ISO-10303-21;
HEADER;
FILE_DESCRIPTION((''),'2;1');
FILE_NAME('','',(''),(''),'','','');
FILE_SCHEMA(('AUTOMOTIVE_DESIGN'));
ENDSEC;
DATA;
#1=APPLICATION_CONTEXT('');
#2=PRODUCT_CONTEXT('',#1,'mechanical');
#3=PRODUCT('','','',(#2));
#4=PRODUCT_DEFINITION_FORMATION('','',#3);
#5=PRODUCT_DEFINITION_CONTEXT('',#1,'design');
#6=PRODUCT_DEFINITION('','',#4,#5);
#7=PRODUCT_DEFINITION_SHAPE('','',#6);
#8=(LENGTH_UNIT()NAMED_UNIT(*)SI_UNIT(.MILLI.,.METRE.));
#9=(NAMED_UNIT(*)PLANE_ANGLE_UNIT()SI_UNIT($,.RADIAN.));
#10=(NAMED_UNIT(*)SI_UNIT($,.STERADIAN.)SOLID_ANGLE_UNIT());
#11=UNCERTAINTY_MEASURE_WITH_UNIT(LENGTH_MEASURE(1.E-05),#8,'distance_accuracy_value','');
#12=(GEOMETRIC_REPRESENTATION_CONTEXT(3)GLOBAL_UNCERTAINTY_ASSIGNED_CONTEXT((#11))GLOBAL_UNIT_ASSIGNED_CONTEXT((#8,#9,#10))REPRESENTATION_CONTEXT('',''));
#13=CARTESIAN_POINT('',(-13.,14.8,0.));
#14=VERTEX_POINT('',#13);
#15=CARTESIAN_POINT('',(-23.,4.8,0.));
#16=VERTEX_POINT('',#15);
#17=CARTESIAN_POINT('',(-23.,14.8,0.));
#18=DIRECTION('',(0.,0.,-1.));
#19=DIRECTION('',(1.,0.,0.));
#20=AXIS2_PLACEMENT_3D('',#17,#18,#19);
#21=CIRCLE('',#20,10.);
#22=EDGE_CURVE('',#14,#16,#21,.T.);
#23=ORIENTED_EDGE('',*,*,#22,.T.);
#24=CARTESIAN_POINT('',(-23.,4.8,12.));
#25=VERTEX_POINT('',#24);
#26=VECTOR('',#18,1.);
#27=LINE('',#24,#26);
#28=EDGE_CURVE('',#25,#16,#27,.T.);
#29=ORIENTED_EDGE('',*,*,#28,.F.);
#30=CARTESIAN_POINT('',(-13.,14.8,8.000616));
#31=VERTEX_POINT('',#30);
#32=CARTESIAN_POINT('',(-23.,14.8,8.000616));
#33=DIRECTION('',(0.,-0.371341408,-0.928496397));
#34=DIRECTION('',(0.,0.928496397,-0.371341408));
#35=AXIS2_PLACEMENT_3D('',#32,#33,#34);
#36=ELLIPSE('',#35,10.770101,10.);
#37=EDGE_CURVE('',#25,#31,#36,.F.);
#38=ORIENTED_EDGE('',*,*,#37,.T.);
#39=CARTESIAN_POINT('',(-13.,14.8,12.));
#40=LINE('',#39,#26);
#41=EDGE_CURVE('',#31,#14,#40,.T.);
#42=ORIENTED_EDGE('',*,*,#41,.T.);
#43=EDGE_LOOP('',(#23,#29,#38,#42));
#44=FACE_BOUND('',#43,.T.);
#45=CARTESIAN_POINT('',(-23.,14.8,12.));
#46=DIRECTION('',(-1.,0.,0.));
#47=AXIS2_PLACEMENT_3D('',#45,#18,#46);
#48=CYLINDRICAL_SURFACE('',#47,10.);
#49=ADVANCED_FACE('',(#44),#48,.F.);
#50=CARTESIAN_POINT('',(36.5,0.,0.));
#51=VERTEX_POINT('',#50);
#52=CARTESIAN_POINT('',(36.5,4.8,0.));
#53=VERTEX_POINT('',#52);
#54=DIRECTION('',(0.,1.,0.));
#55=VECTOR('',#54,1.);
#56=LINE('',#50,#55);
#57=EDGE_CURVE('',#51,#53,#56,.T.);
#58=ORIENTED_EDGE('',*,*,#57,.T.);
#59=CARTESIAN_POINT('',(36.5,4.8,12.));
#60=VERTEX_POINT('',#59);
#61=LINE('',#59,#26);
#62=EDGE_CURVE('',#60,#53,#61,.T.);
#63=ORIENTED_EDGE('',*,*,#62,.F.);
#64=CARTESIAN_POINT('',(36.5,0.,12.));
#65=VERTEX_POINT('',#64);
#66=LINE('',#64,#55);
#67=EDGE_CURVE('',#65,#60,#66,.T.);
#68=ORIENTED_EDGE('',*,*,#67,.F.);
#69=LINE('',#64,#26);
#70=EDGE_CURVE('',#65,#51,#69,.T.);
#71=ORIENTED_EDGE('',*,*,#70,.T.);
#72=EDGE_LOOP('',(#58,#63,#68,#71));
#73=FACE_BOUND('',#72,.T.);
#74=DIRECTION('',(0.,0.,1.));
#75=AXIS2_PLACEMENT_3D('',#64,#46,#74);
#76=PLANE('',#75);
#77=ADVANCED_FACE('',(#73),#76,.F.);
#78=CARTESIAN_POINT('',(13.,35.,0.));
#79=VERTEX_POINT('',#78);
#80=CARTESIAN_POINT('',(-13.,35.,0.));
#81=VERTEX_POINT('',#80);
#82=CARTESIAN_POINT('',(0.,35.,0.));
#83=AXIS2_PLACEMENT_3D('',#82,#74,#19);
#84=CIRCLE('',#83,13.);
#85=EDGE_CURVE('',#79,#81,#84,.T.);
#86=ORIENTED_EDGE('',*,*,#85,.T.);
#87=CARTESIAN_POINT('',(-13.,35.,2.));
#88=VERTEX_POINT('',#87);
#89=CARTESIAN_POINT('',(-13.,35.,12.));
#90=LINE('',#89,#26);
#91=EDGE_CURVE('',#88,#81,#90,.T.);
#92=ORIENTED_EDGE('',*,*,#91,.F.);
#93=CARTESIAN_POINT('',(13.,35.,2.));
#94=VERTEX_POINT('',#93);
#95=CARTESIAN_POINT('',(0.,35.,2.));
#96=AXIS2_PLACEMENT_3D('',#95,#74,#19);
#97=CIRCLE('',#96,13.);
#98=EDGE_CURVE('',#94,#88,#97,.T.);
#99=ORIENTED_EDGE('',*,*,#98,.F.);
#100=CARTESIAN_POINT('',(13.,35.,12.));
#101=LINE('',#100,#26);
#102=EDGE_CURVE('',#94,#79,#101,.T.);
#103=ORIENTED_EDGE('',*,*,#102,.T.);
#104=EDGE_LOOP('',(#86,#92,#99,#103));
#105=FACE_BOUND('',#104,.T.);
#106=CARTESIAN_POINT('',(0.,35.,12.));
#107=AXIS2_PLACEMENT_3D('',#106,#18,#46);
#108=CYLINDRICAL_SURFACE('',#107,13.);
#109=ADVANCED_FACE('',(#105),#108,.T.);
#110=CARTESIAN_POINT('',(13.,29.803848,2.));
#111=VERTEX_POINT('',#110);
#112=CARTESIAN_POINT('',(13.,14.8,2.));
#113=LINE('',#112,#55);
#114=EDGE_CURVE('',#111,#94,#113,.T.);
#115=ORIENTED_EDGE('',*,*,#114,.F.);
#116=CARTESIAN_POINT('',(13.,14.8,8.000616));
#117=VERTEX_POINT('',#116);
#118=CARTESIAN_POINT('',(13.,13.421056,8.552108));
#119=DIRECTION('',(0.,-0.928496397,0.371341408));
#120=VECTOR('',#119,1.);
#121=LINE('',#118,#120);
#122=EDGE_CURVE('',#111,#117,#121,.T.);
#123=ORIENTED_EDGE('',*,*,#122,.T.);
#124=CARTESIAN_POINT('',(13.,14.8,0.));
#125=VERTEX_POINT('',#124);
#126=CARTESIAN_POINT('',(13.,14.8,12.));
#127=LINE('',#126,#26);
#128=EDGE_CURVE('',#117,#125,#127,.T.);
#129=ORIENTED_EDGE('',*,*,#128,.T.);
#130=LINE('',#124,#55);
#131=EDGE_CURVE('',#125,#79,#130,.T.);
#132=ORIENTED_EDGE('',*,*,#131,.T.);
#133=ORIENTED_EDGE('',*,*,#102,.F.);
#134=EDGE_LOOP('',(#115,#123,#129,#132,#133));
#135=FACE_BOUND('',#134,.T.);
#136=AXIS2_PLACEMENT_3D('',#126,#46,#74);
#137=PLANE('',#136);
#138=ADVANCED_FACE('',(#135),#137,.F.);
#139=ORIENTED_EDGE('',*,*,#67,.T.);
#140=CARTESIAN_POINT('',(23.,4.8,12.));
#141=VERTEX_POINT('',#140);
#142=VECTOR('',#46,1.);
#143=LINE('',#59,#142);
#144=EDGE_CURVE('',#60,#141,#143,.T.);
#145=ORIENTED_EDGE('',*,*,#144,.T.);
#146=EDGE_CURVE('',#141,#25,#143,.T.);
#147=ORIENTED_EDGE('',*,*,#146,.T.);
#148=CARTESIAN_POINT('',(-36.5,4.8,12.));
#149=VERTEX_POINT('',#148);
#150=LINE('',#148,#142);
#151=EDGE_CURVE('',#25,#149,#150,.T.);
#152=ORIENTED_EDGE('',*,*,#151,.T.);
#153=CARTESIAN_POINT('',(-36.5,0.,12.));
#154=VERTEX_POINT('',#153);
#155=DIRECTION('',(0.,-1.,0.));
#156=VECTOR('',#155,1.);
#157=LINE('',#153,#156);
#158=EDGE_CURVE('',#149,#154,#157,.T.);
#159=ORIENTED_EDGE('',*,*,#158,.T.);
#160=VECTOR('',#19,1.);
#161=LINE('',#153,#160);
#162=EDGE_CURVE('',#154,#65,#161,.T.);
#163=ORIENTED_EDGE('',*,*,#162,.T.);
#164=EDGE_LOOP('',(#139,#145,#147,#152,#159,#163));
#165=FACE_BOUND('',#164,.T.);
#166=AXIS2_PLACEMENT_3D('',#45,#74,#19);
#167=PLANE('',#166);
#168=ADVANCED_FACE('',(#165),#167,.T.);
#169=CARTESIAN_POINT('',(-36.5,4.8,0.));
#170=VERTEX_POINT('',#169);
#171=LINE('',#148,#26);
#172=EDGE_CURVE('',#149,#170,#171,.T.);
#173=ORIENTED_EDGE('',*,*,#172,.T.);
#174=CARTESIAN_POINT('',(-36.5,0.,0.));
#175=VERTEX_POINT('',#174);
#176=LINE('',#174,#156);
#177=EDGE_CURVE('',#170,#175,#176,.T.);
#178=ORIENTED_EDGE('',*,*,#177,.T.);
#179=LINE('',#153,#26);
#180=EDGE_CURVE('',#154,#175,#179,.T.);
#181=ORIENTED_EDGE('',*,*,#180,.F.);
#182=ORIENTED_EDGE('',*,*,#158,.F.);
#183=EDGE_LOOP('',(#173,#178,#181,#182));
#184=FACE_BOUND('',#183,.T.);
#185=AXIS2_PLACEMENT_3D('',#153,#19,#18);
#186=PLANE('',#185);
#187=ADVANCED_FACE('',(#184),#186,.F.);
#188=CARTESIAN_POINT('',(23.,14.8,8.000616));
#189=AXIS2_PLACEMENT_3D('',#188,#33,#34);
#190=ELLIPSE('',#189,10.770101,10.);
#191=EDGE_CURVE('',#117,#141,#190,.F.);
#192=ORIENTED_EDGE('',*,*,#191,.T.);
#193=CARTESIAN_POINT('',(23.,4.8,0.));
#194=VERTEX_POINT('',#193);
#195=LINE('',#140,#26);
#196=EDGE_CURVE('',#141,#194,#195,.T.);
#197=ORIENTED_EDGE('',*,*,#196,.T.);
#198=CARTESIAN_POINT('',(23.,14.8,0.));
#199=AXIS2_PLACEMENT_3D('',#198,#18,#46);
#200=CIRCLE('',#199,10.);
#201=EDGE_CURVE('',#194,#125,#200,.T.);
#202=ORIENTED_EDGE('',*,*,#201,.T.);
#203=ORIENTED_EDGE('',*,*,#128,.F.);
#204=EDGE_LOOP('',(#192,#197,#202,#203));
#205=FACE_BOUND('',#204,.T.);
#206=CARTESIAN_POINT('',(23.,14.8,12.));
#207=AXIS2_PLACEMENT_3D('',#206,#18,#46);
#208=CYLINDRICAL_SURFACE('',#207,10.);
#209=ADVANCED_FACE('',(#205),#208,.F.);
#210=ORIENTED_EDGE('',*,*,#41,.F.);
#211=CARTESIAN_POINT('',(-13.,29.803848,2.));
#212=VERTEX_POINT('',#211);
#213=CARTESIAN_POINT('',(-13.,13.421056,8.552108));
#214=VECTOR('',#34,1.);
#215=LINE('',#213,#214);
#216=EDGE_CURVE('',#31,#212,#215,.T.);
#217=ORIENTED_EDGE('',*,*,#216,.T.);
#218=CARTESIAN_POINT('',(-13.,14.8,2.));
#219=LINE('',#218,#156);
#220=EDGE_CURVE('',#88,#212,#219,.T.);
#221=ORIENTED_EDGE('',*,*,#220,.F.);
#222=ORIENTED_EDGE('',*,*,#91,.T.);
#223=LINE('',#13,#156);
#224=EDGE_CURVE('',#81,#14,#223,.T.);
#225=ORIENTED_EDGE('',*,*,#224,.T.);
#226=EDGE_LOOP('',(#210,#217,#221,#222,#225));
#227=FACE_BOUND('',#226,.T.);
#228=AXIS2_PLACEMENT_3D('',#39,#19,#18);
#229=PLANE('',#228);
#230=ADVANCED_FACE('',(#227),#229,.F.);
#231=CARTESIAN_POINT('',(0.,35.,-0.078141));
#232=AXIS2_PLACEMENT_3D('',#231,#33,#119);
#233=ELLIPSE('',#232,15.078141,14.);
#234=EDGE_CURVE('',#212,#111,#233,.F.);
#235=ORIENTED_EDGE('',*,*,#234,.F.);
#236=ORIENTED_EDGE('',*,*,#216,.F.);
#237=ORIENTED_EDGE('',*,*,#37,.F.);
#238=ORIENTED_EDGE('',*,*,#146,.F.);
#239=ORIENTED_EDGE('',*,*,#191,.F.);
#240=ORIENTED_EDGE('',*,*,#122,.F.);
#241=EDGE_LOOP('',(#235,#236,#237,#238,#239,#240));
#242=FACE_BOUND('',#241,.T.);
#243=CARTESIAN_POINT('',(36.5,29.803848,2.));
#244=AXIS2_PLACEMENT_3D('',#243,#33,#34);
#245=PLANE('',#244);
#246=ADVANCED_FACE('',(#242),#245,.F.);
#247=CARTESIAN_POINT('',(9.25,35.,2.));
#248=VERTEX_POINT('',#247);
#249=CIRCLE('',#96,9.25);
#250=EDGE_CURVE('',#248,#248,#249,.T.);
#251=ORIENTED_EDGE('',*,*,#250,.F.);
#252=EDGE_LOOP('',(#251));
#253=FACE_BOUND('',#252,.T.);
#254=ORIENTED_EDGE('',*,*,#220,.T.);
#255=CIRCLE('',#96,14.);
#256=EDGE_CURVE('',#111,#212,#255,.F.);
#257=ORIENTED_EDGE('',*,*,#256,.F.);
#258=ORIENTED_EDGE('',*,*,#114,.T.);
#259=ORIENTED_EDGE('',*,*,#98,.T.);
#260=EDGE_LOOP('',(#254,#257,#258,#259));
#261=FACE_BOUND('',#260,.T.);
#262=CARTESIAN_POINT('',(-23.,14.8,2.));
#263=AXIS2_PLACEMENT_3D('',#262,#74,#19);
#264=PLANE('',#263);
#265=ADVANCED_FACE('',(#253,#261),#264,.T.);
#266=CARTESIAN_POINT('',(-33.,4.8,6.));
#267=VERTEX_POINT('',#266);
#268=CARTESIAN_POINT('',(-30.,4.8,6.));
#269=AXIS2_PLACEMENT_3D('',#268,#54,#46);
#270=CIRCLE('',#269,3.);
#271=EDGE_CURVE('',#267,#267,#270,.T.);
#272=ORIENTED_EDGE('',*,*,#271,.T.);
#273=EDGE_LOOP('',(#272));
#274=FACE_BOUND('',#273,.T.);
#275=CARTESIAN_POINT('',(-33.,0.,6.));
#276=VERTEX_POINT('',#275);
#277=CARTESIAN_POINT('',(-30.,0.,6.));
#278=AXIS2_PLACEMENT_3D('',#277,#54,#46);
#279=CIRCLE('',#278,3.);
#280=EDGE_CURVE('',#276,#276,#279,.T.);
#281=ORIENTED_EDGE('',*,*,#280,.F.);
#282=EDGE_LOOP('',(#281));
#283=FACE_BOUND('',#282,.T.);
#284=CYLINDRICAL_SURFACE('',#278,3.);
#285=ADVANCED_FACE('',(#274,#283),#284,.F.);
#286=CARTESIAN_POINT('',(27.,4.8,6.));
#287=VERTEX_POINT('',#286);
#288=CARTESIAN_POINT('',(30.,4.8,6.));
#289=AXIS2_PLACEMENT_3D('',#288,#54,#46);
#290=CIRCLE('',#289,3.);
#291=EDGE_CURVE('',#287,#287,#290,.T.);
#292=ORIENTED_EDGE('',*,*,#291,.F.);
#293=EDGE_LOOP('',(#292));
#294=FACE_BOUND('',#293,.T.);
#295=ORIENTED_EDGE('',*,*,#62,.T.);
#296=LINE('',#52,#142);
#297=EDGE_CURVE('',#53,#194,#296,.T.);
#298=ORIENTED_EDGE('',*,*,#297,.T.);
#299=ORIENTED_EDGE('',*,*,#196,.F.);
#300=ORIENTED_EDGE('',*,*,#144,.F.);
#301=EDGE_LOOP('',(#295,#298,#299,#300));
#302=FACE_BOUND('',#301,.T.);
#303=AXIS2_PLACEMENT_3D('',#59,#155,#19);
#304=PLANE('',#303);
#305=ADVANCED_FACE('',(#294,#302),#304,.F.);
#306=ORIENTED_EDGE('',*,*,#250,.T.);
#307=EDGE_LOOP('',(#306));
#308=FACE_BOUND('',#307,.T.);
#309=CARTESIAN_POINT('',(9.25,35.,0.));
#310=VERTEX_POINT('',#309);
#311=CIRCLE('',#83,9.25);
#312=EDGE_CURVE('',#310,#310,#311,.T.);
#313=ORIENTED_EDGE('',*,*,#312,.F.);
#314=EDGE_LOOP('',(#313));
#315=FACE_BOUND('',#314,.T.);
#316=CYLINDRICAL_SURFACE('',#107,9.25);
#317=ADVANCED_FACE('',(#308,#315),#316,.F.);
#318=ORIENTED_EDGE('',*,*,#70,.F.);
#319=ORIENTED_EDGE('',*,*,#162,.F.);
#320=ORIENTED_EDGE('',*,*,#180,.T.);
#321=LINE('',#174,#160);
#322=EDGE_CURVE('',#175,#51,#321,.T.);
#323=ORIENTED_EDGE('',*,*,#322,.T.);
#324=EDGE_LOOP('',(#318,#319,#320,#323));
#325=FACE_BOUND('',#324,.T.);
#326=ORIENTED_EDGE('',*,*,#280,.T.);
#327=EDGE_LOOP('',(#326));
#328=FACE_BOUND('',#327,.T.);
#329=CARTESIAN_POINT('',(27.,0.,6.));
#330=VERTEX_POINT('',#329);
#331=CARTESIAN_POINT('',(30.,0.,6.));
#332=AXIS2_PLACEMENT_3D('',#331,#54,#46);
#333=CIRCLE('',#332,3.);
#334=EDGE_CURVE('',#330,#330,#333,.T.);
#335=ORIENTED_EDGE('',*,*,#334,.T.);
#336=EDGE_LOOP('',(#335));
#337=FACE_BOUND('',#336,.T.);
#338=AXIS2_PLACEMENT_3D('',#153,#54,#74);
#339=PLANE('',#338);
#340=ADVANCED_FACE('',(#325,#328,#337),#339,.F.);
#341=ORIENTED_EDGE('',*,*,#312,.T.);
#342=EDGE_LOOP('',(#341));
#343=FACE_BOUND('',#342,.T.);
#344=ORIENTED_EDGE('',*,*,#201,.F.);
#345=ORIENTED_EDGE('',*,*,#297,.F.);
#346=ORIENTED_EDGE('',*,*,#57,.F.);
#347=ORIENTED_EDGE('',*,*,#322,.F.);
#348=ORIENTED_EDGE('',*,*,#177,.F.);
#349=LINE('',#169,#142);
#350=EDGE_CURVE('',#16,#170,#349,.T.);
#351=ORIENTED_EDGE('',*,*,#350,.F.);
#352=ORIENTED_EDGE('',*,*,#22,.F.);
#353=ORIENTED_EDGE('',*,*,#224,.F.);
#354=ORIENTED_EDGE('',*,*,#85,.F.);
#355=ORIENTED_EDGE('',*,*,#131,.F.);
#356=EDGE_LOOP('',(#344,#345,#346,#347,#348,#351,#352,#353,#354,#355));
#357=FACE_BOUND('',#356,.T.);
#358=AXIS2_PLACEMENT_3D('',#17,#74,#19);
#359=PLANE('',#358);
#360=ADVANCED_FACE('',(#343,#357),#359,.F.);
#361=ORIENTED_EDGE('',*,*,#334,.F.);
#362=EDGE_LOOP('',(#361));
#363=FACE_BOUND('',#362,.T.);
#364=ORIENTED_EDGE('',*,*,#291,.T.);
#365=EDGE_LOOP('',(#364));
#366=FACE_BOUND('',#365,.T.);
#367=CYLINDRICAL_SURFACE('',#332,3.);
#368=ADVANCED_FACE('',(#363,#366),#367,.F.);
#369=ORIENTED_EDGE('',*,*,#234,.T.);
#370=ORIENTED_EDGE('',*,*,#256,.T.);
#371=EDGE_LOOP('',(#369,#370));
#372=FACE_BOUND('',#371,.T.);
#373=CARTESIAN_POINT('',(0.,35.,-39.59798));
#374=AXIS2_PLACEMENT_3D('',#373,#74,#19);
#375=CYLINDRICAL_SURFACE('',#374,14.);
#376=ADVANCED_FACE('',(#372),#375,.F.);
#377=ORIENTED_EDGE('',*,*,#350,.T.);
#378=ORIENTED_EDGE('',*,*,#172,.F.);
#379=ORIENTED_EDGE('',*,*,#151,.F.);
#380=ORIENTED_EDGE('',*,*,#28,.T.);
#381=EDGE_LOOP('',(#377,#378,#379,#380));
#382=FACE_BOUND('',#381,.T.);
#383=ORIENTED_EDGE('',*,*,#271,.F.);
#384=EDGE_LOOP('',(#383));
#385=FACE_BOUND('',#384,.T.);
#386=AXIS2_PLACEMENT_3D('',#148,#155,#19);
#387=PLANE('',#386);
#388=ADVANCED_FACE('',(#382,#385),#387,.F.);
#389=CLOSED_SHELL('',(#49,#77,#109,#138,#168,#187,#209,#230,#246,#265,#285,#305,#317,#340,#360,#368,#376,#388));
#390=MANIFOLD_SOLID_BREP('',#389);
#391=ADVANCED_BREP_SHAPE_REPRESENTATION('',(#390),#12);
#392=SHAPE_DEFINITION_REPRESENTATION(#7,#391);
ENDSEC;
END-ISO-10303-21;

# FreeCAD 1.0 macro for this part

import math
import FreeCAD as App
import Part
import Sketcher

V = App.Vector
Q = App.Units.Quantity

doc = App.newDocument("Part")
body = doc.addObject("PartDesign::Body", "Body")

sketch1 = doc.addObject("Sketcher::SketchObject", "Sketch")
body.addObject(sketch1)
sketch1.AttachmentSupport = (doc.XY_Plane, [""])
sketch1.MapMode = "FlatFace"
sketch1.addGeometry([
    Part.LineSegment(V(-36.5, 0, 0), V(36.5, 0, 0)),
    Part.LineSegment(V(36.5, 0, 0), V(36.5, 4.8, 0)),
    Part.LineSegment(V(36.5, 4.8, 0), V(23, 4.8, 0)),
    Part.ArcOfCircle(Part.Circle(V(23, 14.8, 0), V(0, 0, 1), 10), math.radians(180), math.radians(270)),
    Part.LineSegment(V(13, 14.8, 0), V(13, 35, 0)),
    Part.ArcOfCircle(Part.Circle(V(0, 35, 0), V(0, 0, 1), 13), math.radians(0), math.radians(180)),
    Part.LineSegment(V(-13, 35, 0), V(-13, 14.8, 0)),
    Part.ArcOfCircle(Part.Circle(V(-23, 14.8, 0), V(0, 0, 1), 10), math.radians(-90), math.radians(0)),
    Part.LineSegment(V(-23, 4.8, 0), V(-36.5, 4.8, 0)),
    Part.LineSegment(V(-36.5, 4.8, 0), V(-36.5, 0, 0)),
    Part.Circle(V(0, 35, 0), V(0, 0, 1), 9.25),
], False)
sketch1.addConstraint([
    Sketcher.Constraint("Coincident", 0, 2, 1, 1),
    Sketcher.Constraint("Coincident", 1, 2, 2, 1),
    Sketcher.Constraint("Tangent", 2, 2, 3, 2),
    Sketcher.Constraint("Tangent", 3, 1, 4, 1),
    Sketcher.Constraint("Tangent", 4, 2, 5, 1),
    Sketcher.Constraint("Tangent", 5, 2, 6, 1),
    Sketcher.Constraint("Tangent", 6, 2, 7, 2),
    Sketcher.Constraint("Tangent", 7, 1, 8, 1),
    Sketcher.Constraint("Coincident", 8, 2, 9, 1),
    Sketcher.Constraint("Coincident", 9, 2, 0, 1),
    Sketcher.Constraint("Horizontal", 0),
    Sketcher.Constraint("Vertical", 1),
    Sketcher.Constraint("Horizontal", 2),
    Sketcher.Constraint("Vertical", 4),
    Sketcher.Constraint("Vertical", 6),
    Sketcher.Constraint("Horizontal", 8),
    Sketcher.Constraint("Vertical", 9),
    Sketcher.Constraint("Coincident", 10, 3, 5, 3),
    Sketcher.Constraint("Equal", 3, 7),
    Sketcher.Constraint("Symmetric", 0, 2, 9, 2, -1, 1),
    Sketcher.Constraint("Symmetric", 3, 3, 7, 3, -2),
    Sketcher.Constraint("Radius", 3, Q("10 mm")),
    Sketcher.Constraint("Radius", 5, Q("13 mm")),
    Sketcher.Constraint("Diameter", 10, Q("18.5 mm")),
    Sketcher.Constraint("DistanceX", 0, 1, 0, 2, Q("73 mm")),
    Sketcher.Constraint("DistanceY", 1, 1, 1, 2, Q("4.8 mm")),
    Sketcher.Constraint("DistanceY", 4, 1, 4, 2, Q("20.2 mm")),
])
pad1 = doc.addObject("PartDesign::Pad", "Pad")
body.addObject(pad1)
pad1.Profile = sketch1
pad1.Length = 12

sketch2 = doc.addObject("Sketcher::SketchObject", "Sketch001")
body.addObject(sketch2)
sketch2.AttachmentSupport = (doc.XZ_Plane, [""])
sketch2.MapMode = "FlatFace"
sketch2.AttachmentOffset = App.Placement(V(0, 0, -4.8), App.Rotation())
sketch2.addGeometry([
    Part.Circle(V(-30, 6, 0), V(0, 0, 1), 3),
    Part.Circle(V(30, 6, 0), V(0, 0, 1), 3),
], False)
sketch2.addConstraint([
    Sketcher.Constraint("Equal", 0, 1),
    Sketcher.Constraint("Symmetric", 0, 3, 1, 3, -2),
    Sketcher.Constraint("Diameter", 0, Q("6 mm")),
    Sketcher.Constraint("DistanceX", 0, 3, -1, 1, Q("30 mm")),
    Sketcher.Constraint("DistanceY", -1, 1, 0, 3, Q("6 mm")),
])
pocket1 = doc.addObject("PartDesign::Pocket", "Pocket")
body.addObject(pocket1)
pocket1.Profile = sketch2
pocket1.Type = "ThroughAll"
pocket1.Reversed = True

sketch3 = doc.addObject("Sketcher::SketchObject", "Sketch002")
body.addObject(sketch3)
sketch3.AttachmentSupport = (doc.XY_Plane, [""])
sketch3.MapMode = "FlatFace"
sketch3.AttachmentOffset = App.Placement(V(0, 0, 12), App.Rotation())
sketch3.addGeometry(Part.Circle(V(0, 35, 0), V(0, 0, 1), 14), False)
sketch3.addConstraint([
    Sketcher.Constraint("PointOnObject", 0, 3, -2),
    Sketcher.Constraint("Diameter", 0, Q("28 mm")),
    Sketcher.Constraint("DistanceY", -1, 1, 0, 3, Q("35 mm")),
])
pocket2 = doc.addObject("PartDesign::Pocket", "Pocket001")
body.addObject(pocket2)
pocket2.Profile = sketch3
pocket2.Length = 10

sketch4 = doc.addObject("Sketcher::SketchObject", "Sketch003")
body.addObject(sketch4)
sketch4.AttachmentSupport = (doc.YZ_Plane, [""])
sketch4.MapMode = "FlatFace"
sketch4.AttachmentOffset = App.Placement(V(0, 0, -36.5), App.Rotation())
sketch4.addGeometry([
    Part.LineSegment(V(29.803848, 2, 0), V(4.8, 12, 0)),
    Part.LineSegment(V(4.8, 12, 0), V(29.803848, 12, 0)),
    Part.LineSegment(V(29.803848, 12, 0), V(29.803848, 2, 0)),
], False)
sketch4.addConstraint([
    Sketcher.Constraint("Coincident", 0, 2, 1, 1),
    Sketcher.Constraint("Coincident", 1, 2, 2, 1),
    Sketcher.Constraint("Coincident", 2, 2, 0, 1),
    Sketcher.Constraint("Horizontal", 1),
    Sketcher.Constraint("Vertical", 2),
    Sketcher.Constraint("DistanceY", 2, 2, 2, 1, Q("10 mm")),
    Sketcher.Constraint("DistanceY", -1, 1, 0, 2, Q("12 mm")),
    Sketcher.Constraint("DistanceX", -1, 1, 0, 2, Q("4.8 mm")),
    Sketcher.Constraint("DistanceX", 1, 1, 1, 2, Q("25.003848 mm")),
])
pocket3 = doc.addObject("PartDesign::Pocket", "Pocket002")
body.addObject(pocket3)
pocket3.Profile = sketch4
pocket3.Type = "ThroughAll"
pocket3.Reversed = True

doc.recompute()
